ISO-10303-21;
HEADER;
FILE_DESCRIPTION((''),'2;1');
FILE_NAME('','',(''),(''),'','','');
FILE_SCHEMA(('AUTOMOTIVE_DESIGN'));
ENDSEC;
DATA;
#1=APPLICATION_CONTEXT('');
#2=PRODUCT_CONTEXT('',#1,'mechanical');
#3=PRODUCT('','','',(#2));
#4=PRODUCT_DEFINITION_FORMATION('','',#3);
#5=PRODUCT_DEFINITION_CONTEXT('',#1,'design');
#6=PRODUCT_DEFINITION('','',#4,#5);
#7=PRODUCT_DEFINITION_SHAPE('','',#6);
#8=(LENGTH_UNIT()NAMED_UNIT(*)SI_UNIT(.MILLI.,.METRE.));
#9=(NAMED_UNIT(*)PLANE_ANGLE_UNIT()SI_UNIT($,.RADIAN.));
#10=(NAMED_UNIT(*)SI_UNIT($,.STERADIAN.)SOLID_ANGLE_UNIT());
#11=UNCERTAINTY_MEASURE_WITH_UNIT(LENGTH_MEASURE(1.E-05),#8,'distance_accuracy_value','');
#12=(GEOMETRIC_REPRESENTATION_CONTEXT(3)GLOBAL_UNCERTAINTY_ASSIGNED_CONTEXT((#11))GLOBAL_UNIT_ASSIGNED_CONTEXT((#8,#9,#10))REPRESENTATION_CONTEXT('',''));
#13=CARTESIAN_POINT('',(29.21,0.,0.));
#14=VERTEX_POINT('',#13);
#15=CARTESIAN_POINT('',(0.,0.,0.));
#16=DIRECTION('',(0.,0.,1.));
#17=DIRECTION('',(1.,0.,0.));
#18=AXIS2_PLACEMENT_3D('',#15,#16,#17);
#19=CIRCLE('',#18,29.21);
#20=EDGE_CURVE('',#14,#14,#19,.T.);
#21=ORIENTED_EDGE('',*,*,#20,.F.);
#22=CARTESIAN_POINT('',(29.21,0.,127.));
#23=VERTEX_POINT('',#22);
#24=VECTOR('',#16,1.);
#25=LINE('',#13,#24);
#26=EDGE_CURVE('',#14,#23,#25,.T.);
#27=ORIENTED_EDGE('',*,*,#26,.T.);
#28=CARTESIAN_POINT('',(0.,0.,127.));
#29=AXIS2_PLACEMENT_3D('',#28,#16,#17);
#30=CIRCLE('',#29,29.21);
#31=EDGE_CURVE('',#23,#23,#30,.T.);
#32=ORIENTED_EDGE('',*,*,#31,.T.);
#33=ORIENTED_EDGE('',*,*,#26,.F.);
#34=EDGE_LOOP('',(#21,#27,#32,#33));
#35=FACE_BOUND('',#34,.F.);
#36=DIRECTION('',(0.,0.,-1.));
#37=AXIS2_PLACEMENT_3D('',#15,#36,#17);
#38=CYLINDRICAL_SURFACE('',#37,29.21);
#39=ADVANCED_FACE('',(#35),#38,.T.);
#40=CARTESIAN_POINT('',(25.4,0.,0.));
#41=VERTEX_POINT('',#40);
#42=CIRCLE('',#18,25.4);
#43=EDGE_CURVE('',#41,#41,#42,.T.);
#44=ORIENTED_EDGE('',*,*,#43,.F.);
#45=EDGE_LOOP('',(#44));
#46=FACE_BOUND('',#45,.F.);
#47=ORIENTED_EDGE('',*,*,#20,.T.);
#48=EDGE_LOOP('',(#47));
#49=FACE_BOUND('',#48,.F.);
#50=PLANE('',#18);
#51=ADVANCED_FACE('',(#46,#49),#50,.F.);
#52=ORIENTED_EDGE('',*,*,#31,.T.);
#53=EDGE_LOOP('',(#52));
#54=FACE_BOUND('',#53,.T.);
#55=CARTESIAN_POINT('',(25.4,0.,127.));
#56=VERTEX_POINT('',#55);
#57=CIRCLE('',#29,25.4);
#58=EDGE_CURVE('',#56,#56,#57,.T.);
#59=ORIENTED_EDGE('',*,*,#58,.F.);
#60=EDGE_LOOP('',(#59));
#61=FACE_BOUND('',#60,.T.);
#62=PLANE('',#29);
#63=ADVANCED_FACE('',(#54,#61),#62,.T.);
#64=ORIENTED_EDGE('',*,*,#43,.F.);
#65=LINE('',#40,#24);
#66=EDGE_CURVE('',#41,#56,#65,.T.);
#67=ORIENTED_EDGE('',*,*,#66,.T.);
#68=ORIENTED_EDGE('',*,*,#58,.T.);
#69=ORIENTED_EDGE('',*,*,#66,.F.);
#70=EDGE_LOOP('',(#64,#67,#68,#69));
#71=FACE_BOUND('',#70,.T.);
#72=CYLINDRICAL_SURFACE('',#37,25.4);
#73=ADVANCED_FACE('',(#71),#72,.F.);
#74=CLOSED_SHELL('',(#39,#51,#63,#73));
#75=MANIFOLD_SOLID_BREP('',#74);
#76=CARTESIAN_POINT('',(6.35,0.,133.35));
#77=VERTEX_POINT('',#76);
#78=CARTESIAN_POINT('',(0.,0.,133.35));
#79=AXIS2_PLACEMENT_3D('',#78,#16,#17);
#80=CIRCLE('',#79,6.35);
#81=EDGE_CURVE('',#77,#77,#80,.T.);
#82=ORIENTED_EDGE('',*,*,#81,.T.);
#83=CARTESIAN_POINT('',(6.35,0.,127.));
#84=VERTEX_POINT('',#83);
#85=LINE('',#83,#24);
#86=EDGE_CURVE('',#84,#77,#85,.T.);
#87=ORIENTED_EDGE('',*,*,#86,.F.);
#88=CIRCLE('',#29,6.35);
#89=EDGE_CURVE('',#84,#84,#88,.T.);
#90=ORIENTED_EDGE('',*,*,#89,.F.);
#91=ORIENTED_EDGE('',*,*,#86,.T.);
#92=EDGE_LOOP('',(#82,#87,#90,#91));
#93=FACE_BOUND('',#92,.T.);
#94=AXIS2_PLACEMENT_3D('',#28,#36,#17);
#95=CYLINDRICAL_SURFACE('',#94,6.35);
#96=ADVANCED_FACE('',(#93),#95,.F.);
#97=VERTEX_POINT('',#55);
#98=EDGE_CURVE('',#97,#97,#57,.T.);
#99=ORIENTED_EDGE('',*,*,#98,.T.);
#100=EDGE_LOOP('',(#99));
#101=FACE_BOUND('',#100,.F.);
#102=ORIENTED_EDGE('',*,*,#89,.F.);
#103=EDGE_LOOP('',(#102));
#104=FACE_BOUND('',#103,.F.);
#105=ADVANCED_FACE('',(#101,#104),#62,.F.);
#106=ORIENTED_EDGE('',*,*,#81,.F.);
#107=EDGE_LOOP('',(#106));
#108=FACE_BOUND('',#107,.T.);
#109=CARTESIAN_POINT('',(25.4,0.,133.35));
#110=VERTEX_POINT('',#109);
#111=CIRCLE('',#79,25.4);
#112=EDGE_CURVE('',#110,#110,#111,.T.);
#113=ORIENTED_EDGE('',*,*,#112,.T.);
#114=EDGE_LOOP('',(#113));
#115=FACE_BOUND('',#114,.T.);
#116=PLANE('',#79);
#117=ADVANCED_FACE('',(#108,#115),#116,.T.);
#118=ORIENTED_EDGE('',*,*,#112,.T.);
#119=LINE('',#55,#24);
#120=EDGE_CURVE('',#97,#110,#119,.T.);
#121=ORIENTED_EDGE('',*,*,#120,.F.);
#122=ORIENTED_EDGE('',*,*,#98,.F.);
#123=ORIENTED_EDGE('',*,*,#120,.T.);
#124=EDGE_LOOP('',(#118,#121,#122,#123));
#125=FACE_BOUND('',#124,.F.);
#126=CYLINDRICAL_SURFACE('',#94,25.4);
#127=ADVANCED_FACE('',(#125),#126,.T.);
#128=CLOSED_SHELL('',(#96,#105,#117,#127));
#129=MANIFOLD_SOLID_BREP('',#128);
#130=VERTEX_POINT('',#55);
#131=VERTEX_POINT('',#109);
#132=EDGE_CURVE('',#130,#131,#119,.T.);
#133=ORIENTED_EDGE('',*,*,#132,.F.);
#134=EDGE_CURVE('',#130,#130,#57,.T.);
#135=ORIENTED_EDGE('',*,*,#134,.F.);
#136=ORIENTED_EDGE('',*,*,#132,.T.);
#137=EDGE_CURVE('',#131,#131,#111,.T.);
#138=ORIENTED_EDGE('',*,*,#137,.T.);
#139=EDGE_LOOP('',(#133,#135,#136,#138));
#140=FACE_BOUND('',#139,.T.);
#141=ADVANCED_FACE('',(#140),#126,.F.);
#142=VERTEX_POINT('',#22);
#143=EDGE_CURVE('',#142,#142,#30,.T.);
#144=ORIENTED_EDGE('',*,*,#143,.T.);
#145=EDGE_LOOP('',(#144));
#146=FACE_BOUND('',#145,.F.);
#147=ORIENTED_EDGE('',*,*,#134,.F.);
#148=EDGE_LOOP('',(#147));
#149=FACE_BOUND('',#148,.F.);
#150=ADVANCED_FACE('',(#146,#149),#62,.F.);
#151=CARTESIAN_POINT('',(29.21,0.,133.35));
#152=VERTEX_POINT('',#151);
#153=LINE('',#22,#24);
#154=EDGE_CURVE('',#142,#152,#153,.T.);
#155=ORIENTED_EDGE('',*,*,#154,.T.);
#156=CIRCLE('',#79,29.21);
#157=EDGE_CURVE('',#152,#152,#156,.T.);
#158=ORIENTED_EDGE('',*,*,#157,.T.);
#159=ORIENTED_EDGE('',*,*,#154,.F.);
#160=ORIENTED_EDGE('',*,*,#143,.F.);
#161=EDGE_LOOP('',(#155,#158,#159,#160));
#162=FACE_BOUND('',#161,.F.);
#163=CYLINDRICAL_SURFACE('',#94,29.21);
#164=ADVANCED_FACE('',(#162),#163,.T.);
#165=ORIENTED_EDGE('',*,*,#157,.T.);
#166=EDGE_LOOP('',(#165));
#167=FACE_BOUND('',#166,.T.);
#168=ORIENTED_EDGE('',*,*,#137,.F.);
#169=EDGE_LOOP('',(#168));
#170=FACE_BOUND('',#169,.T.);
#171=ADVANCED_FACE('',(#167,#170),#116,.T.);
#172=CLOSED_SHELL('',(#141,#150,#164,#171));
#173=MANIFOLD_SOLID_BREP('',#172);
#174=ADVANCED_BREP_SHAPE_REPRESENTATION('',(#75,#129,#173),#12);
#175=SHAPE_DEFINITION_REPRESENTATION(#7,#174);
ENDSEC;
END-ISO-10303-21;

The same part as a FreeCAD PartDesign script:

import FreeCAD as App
import Part
import Sketcher
from FreeCAD import Vector
Q = App.Units.Quantity

doc = App.newDocument("Part")
body = doc.addObject("PartDesign::Body", "Body")

# Sketch on XY plane
sketch1 = body.newObject("Sketcher::SketchObject", "Sketch")
sketch1.AttachmentSupport = (doc.getObject("XY_Plane"), [""])
sketch1.MapMode = "FlatFace"
sketch1.addGeometry(Part.Circle(Vector(0, 0, 0), Vector(0, 0, 1), 29), False)
sketch1.addGeometry(Part.Circle(Vector(0, 0, 0), Vector(0, 0, 1), 25), False)
sketch1.addConstraint(Sketcher.Constraint("Coincident", 0, 3, -1, 1))
sketch1.addConstraint(Sketcher.Constraint("Coincident", 1, 3, -1, 1))
sketch1.addConstraint(Sketcher.Constraint("Diameter", 1, Q("2 in")))
sketch1.addConstraint(Sketcher.Constraint("Diameter", 0, Q("2.3 in")))
pad1 = body.newObject("PartDesign::Pad", "Pad")
pad1.Profile = sketch1
pad1.Length = Q("5 in")
body2 = doc.addObject("PartDesign::Body", "Body001")

# Sketch on XY plane
sketch2 = body2.newObject("Sketcher::SketchObject", "Sketch001")
sketch2.AttachmentSupport = (doc.getObject("XY_Plane001"), [""])
sketch2.MapMode = "FlatFace"
sketch2.AttachmentOffset = App.Placement(Vector(0, 0, 5 * 25.4), App.Rotation())
sketch2.addGeometry(Part.Circle(Vector(0, 0, 0), Vector(0, 0, 1), 25), False)
sketch2.addGeometry(Part.Circle(Vector(0, 0, 0), Vector(0, 0, 1), 6), False)
sketch2.addConstraint(Sketcher.Constraint("Coincident", 0, 3, -1, 1))
sketch2.addConstraint(Sketcher.Constraint("Coincident", 1, 3, -1, 1))
sketch2.addConstraint(Sketcher.Constraint("Diameter", 0, Q("2 in")))
sketch2.addConstraint(Sketcher.Constraint("Diameter", 1, Q("0.5 in")))
pad2 = body2.newObject("PartDesign::Pad", "Pad001")
pad2.Profile = sketch2
pad2.Length = Q("0.25 in")
body3 = doc.addObject("PartDesign::Body", "Body002")

# Sketch on XY plane
sketch3 = body3.newObject("Sketcher::SketchObject", "Sketch002")
sketch3.AttachmentSupport = (doc.getObject("XY_Plane002"), [""])
sketch3.MapMode = "FlatFace"
sketch3.AttachmentOffset = App.Placement(Vector(0, 0, 5 * 25.4), App.Rotation())
sketch3.addGeometry(Part.Circle(Vector(0, 0, 0), Vector(0, 0, 1), 29), False)
sketch3.addGeometry(Part.Circle(Vector(0, 0, 0), Vector(0, 0, 1), 25), False)
sketch3.addConstraint(Sketcher.Constraint("Coincident", 0, 3, -1, 1))
sketch3.addConstraint(Sketcher.Constraint("Coincident", 1, 3, -1, 1))
sketch3.addConstraint(Sketcher.Constraint("Diameter", 1, Q("2 in")))
sketch3.addConstraint(Sketcher.Constraint("Diameter", 0, Q("2.3 in")))
pad3 = body3.newObject("PartDesign::Pad", "Pad002")
pad3.Profile = sketch3
pad3.Length = Q("0.25 in")

doc.recompute()
